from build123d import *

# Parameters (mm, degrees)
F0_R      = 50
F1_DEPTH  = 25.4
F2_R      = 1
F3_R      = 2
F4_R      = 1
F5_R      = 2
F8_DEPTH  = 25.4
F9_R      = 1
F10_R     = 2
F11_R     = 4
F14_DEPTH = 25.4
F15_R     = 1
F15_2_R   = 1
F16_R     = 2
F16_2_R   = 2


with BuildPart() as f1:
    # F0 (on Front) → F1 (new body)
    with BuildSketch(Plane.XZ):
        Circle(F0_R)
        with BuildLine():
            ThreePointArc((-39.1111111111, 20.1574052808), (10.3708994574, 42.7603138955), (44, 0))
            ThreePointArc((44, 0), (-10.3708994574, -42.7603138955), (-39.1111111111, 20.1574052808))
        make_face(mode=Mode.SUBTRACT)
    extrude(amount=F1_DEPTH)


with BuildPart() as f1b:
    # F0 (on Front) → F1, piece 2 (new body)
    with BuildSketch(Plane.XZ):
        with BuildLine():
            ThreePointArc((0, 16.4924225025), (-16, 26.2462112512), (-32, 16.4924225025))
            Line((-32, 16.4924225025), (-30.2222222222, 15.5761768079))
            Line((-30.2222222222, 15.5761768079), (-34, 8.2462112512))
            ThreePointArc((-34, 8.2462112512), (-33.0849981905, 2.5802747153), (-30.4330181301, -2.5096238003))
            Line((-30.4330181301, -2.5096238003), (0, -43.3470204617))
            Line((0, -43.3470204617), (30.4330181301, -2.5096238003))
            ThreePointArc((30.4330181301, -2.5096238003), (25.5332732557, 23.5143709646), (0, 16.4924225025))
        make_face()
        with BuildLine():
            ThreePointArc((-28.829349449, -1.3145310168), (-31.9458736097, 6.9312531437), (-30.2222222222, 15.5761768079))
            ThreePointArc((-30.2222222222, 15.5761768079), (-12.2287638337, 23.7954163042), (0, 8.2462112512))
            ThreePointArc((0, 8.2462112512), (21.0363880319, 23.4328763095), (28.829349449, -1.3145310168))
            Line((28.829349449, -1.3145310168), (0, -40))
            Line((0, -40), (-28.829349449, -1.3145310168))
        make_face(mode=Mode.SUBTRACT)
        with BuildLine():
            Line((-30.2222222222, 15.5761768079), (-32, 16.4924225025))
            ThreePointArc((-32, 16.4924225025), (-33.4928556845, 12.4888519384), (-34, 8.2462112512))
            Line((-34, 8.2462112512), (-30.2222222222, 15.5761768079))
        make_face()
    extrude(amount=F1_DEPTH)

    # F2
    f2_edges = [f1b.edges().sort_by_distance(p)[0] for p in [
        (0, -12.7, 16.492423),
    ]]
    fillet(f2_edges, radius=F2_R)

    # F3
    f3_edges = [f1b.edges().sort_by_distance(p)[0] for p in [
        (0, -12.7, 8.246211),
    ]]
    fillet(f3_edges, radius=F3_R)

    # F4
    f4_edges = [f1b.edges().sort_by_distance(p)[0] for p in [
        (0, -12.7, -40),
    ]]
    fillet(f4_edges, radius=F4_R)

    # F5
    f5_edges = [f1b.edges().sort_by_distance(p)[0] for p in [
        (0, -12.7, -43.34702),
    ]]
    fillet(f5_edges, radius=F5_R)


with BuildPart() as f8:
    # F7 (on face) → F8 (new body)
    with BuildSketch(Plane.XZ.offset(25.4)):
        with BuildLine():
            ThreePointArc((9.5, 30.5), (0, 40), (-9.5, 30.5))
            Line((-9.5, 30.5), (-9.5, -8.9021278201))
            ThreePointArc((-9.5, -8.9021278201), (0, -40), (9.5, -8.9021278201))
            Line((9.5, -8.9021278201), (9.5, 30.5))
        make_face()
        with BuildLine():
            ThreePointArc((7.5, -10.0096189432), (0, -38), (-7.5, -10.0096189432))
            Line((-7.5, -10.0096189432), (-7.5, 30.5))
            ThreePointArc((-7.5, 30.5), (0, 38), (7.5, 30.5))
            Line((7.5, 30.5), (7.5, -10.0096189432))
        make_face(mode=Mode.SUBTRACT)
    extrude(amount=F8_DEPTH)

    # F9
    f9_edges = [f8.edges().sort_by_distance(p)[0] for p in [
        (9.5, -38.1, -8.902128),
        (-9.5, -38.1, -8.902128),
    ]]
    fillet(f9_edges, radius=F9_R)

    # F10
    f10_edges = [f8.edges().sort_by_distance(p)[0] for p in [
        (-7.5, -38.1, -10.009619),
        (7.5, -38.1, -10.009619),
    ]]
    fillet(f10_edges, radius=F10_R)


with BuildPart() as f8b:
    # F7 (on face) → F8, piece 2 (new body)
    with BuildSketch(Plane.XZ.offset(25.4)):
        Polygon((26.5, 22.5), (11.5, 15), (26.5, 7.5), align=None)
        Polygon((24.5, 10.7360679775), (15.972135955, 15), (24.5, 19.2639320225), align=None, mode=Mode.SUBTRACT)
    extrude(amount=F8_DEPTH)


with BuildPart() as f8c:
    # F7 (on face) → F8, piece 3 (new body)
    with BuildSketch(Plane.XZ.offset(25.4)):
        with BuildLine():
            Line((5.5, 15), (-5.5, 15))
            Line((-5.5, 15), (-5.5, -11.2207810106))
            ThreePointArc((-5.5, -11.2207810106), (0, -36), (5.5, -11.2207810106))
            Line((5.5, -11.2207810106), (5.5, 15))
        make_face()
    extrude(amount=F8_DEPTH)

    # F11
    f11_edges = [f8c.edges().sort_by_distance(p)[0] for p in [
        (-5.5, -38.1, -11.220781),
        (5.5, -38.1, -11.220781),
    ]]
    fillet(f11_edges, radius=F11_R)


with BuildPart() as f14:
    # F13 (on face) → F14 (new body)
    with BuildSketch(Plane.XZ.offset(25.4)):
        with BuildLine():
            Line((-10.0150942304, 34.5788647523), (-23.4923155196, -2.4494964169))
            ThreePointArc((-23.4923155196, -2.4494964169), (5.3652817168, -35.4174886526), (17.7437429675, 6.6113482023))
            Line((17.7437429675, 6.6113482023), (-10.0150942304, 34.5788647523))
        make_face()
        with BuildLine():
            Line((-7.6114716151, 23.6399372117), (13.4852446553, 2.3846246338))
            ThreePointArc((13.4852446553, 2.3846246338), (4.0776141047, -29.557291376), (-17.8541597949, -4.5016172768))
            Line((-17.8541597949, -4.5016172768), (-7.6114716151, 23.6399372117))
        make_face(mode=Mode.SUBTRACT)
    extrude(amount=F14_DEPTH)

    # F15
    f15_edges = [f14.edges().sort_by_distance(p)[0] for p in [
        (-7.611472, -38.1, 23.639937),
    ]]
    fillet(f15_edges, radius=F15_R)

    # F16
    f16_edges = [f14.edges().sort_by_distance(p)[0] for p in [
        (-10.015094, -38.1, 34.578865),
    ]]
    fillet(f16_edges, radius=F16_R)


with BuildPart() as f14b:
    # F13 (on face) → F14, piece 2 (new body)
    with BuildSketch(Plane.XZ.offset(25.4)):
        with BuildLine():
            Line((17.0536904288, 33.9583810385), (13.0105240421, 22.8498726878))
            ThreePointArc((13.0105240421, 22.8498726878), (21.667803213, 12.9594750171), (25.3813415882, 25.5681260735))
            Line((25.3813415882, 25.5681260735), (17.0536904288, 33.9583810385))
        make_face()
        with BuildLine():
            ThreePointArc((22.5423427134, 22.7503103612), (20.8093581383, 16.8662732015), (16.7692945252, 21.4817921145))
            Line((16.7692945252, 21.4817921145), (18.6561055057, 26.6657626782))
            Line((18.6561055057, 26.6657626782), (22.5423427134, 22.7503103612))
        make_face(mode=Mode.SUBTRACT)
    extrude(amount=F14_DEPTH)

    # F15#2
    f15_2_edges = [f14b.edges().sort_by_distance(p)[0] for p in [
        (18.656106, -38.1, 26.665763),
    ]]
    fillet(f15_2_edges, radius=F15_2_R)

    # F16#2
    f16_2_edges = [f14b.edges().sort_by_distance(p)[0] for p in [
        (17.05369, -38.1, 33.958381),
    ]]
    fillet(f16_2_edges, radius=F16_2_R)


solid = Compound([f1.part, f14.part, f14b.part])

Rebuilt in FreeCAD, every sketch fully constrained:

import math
import FreeCAD as App
import Part
import Sketcher

V = App.Vector
Q = App.Units.Quantity


def edges_at(feature, points):
    """Names of the edges that pass closest to the given points."""
    edges = feature.Shape.Edges
    near = lambda p: min(range(len(edges)), key=lambda i: edges[i].distToShape(Part.Vertex(*p))[0])
    return sorted({f"Edge{near(p) + 1}" for p in points})


def add_polygon(sketch, points):
    """Adds a closed chain of lines whose ends are joined by coincident constraints."""
    first, n = sketch.GeometryCount, len(points)
    for a, b in zip(points, points[1:] + points[:1]):
        sketch.addGeometry(Part.LineSegment(App.Vector(*a, 0), App.Vector(*b, 0)), False)
    for i in range(n):
        sketch.addConstraint(Sketcher.Constraint("Coincident", first + i, 2, first + (i + 1) % n, 1))

doc = App.newDocument("Part")
body = doc.addObject("PartDesign::Body", "Body")

sketch1 = body.newObject("Sketcher::SketchObject", "Sketch")
sketch1.AttachmentSupport = (doc.getObject("XZ_Plane"), [""])
sketch1.MapMode = "FlatFace"
sketch1.addGeometry(Part.Circle(V(0, 0, 0), V(0, 0, 1), 50), False)
sketch1.addGeometry(Part.ArcOfCircle(Part.Circle(V(0, 0, 0), V(0, 0, 1), 44), math.radians(153), math.radians(360)), False)
sketch1.addGeometry(Part.ArcOfCircle(Part.Circle(V(0, 0, 0), V(0, 0, 1), 44), math.radians(0), math.radians(153)), False)
sketch1.addConstraint(Sketcher.Constraint("Tangent", 1, 1, 2, 2))
sketch1.addConstraint(Sketcher.Constraint("Coincident", 2, 1, 1, 2))
sketch1.addConstraint(Sketcher.Constraint("Coincident", 0, 3, -1, 1))
sketch1.addConstraint(Sketcher.Constraint("Coincident", 1, 3, -1, 1))
sketch1.addConstraint(Sketcher.Constraint("PointOnObject", 2, 1, -1))
sketch1.addConstraint(Sketcher.Constraint("Diameter", 0, Q("100 mm")))
sketch1.addConstraint(Sketcher.Constraint("Radius", 1, Q("44 mm")))
sketch1.addConstraint(Sketcher.Constraint("DistanceX", 1, 1, -1, 1, Q("39.111111 mm")))
pad1 = body.newObject("PartDesign::Pad", "Pad")
pad1.Profile = sketch1
pad1.Length = 25.4
body2 = doc.addObject("PartDesign::Body", "Body001")

sketch2 = body2.newObject("Sketcher::SketchObject", "Sketch001")
sketch2.AttachmentSupport = (doc.getObject("XZ_Plane001"), [""])
sketch2.MapMode = "FlatFace"
sketch2.addGeometry(Part.LineSegment(V(0, -43, 0), V(30, -3, 0)), False)
sketch2.addGeometry(Part.ArcOfCircle(Part.Circle(V(16, 8, 0), V(0, 0, 1), 18), math.radians(-37), math.radians(153)), False)
sketch2.addGeometry(Part.ArcOfCircle(Part.Circle(V(-16, 8, 0), V(0, 0, 1), 18), math.radians(27), math.radians(153)), False)
sketch2.addGeometry(Part.ArcOfCircle(Part.Circle(V(-16, 8, 0), V(0, 0, 1), 18), math.radians(153), math.radians(180)), False)
sketch2.addGeometry(Part.ArcOfCircle(Part.Circle(V(-16, 8, 0), V(0, 0, 1), 18), math.radians(180), math.radians(217)), False)
sketch2.addGeometry(Part.LineSegment(V(-30, -3, 0), V(0, -43, 0)), False)
sketch2.addGeometry(Part.ArcOfCircle(Part.Circle(V(-16, 8, 0), V(0, 0, 1), 16), math.radians(153), math.radians(217)), False)
sketch2.addGeometry(Part.ArcOfCircle(Part.Circle(V(-16, 8, 0), V(0, 0, 1), 16), math.radians(0), math.radians(153)), False)
sketch2.addGeometry(Part.ArcOfCircle(Part.Circle(V(16, 8, 0), V(0, 0, 1), 16), math.radians(-37), math.radians(180)), False)
sketch2.addGeometry(Part.LineSegment(V(29, -1, 0), V(0, -40, 0)), False)
sketch2.addGeometry(Part.LineSegment(V(0, -40, 0), V(-29, -1, 0)), False)
sketch2.addConstraint(Sketcher.Constraint("Tangent", 0, 2, 1, 1))
sketch2.addConstraint(Sketcher.Constraint("Coincident", 1, 2, 2, 1))
sketch2.addConstraint(Sketcher.Constraint("Tangent", 2, 2, 3, 1))
sketch2.addConstraint(Sketcher.Constraint("Tangent", 3, 2, 4, 1))
sketch2.addConstraint(Sketcher.Constraint("Tangent", 4, 2, 5, 1))
sketch2.addConstraint(Sketcher.Constraint("Coincident", 5, 2, 0, 1))
sketch2.addConstraint(Sketcher.Constraint("Tangent", 6, 1, 7, 2))
sketch2.addConstraint(Sketcher.Constraint("Tangent", 7, 1, 8, 2))
sketch2.addConstraint(Sketcher.Constraint("Tangent", 8, 1, 9, 1))
sketch2.addConstraint(Sketcher.Constraint("Coincident", 9, 2, 10, 1))
sketch2.addConstraint(Sketcher.Constraint("Tangent", 10, 2, 6, 2))
sketch2.addConstraint(Sketcher.Constraint("Coincident", 4, 3, 2, 3))
sketch2.addConstraint(Sketcher.Constraint("Coincident", 6, 3, 2, 3))
sketch2.addConstraint(Sketcher.Constraint("Coincident", 8, 3, 1, 3))
sketch2.addConstraint(Sketcher.Constraint("Equal", 1, 2))
sketch2.addConstraint(Sketcher.Constraint("Equal", 6, 7))
sketch2.addConstraint(Sketcher.Constraint("Equal", 7, 8))
sketch2.addConstraint(Sketcher.Constraint("Symmetric", 1, 3, 2, 3, -2))
sketch2.addConstraint(Sketcher.Constraint("PointOnObject", 5, 2, -2))
sketch2.addConstraint(Sketcher.Constraint("PointOnObject", 9, 2, -2))
sketch2.addConstraint(Sketcher.Constraint("Parallel", 0, 9))
sketch2.addConstraint(Sketcher.Constraint("Horizontal", 1, 2, 2, 2))
sketch2.addConstraint(Sketcher.Constraint("Horizontal", 8, 3, 3, 2))
sketch2.addConstraint(Sketcher.Constraint("Radius", 1, Q("18 mm")))
sketch2.addConstraint(Sketcher.Constraint("Radius", 6, Q("16 mm")))
sketch2.addConstraint(Sketcher.Constraint("DistanceY", 9, 2, -1, 1, Q("40 mm")))
sketch2.addConstraint(Sketcher.Constraint("Distance", 9, Q("48.246211 mm")))
sketch2.addConstraint(Sketcher.Constraint("DistanceX", 6, 1, -1, 1, Q("30.222222 mm")))
pad2 = body2.newObject("PartDesign::Pad", "Pad001")
pad2.Profile = sketch2
pad2.Length = 25.4
doc.recompute()

fillet = body2.newObject("PartDesign::Fillet", "Fillet")
fillet.Base = (pad2, edges_at(pad2, [(0, -12.7, 16.492)]))
fillet.Radius = 1
doc.recompute()

fillet2 = body2.newObject("PartDesign::Fillet", "Fillet001")
fillet2.Base = (fillet, edges_at(fillet, [(0, -12.7, 8.246)]))
fillet2.Radius = 2
doc.recompute()

fillet3 = body2.newObject("PartDesign::Fillet", "Fillet002")
fillet3.Base = (fillet2, edges_at(fillet2, [(0, -12.7, -40)]))
fillet3.Radius = 1
doc.recompute()

fillet4 = body2.newObject("PartDesign::Fillet", "Fillet003")
fillet4.Base = (fillet3, edges_at(fillet3, [(0, -12.7, -43.347)]))
fillet4.Radius = 2
body3 = doc.addObject("PartDesign::Body", "Body002")

sketch3 = body3.newObject("Sketcher::SketchObject", "Sketch002")
sketch3.AttachmentSupport = (doc.getObject("XZ_Plane002"), [""])
sketch3.MapMode = "FlatFace"
sketch3.AttachmentOffset = App.Placement(V(0, 0, 25.4), App.Rotation())
sketch3.addGeometry(Part.ArcOfCircle(Part.Circle(V(0, 30, 0), V(0, 0, 1), 10), math.radians(0), math.radians(180)), False)
sketch3.addGeometry(Part.LineSegment(V(-10, 30, 0), V(-10, -9, 0)), False)
sketch3.addGeometry(Part.ArcOfCircle(Part.Circle(V(0, -23, 0), V(0, 0, 1), 17), math.radians(124), math.radians(416)), False)
sketch3.addGeometry(Part.LineSegment(V(10, -9, 0), V(10, 30, 0)), False)
sketch3.addGeometry(Part.LineSegment(V(8, 30, 0), V(8, -10, 0)), False)
sketch3.addGeometry(Part.ArcOfCircle(Part.Circle(V(0, -23, 0), V(0, 0, 1), 15), math.radians(120), math.radians(420)), False)
sketch3.addGeometry(Part.LineSegment(V(-8, -10, 0), V(-8, 30, 0)), False)
sketch3.addGeometry(Part.ArcOfCircle(Part.Circle(V(0, 30, 0), V(0, 0, 1), 8), math.radians(0), math.radians(180)), False)
sketch3.addConstraint(Sketcher.Constraint("Tangent", 0, 2, 1, 1))
sketch3.addConstraint(Sketcher.Constraint("Coincident", 1, 2, 2, 1))
sketch3.addConstraint(Sketcher.Constraint("Coincident", 2, 2, 3, 1))
sketch3.addConstraint(Sketcher.Constraint("Tangent", 3, 2, 0, 1))
sketch3.addConstraint(Sketcher.Constraint("Coincident", 4, 2, 5, 2))
sketch3.addConstraint(Sketcher.Constraint("Coincident", 5, 1, 6, 1))
sketch3.addConstraint(Sketcher.Constraint("Tangent", 6, 2, 7, 2))
sketch3.addConstraint(Sketcher.Constraint("Tangent", 7, 1, 4, 1))
sketch3.addConstraint(Sketcher.Constraint("Vertical", 1))
sketch3.addConstraint(Sketcher.Constraint("Vertical", 3))
sketch3.addConstraint(Sketcher.Constraint("Vertical", 4))
sketch3.addConstraint(Sketcher.Constraint("Vertical", 6))
sketch3.addConstraint(Sketcher.Constraint("Coincident", 5, 3, 2, 3))
sketch3.addConstraint(Sketcher.Constraint("Coincident", 7, 3, 0, 3))
sketch3.addConstraint(Sketcher.Constraint("Symmetric", 1, 2, 2, 2, -2))
sketch3.addConstraint(Sketcher.Constraint("Radius", 2, Q("17 mm")))
sketch3.addConstraint(Sketcher.Constraint("Radius", 5, Q("15 mm")))
sketch3.addConstraint(Sketcher.Constraint("Radius", 0, Q("9.5 mm")))
sketch3.addConstraint(Sketcher.Constraint("Radius", 7, Q("7.5 mm")))
sketch3.addConstraint(Sketcher.Constraint("DistanceY", 2, 3, -1, 1, Q("23 mm")))
sketch3.addConstraint(Sketcher.Constraint("DistanceY", -1, 1, 0, 3, Q("30.5 mm")))
pad3 = body3.newObject("PartDesign::Pad", "Pad002")
pad3.Profile = sketch3
pad3.Length = 25.4
doc.recompute()

fillet5 = body3.newObject("PartDesign::Fillet", "Fillet004")
fillet5.Base = (pad3, edges_at(pad3, [(9.5, -38.1, -8.902), (-9.5, -38.1, -8.902)]))
fillet5.Radius = 1
doc.recompute()

fillet6 = body3.newObject("PartDesign::Fillet", "Fillet005")
fillet6.Base = (fillet5, edges_at(fillet5, [(-7.5, -38.1, -10.01), (7.5, -38.1, -10.01)]))
fillet6.Radius = 2
body4 = doc.addObject("PartDesign::Body", "Body003")

sketch4 = body4.newObject("Sketcher::SketchObject", "Sketch003")
sketch4.AttachmentSupport = (doc.getObject("XZ_Plane003"), [""])
sketch4.MapMode = "FlatFace"
sketch4.AttachmentOffset = App.Placement(V(0, 0, 25.4), App.Rotation())
add_polygon(sketch4, [(26, 22), (12, 15), (26, 8)])
add_polygon(sketch4, [(24, 19), (24, 11), (16, 15)])
sketch4.addConstraint(Sketcher.Constraint("Vertical", 2))
sketch4.addConstraint(Sketcher.Constraint("Vertical", 3))
sketch4.addConstraint(Sketcher.Constraint("Parallel", 1, 4))
sketch4.addConstraint(Sketcher.Constraint("Parallel", 0, 5))
sketch4.addConstraint(Sketcher.Constraint("Horizontal", 0, 2, 4, 2))
sketch4.addConstraint(Sketcher.Constraint("Equal", 0, 1))
sketch4.addConstraint(Sketcher.Constraint("DistanceY", 2, 1, 2, 2, Q("15 mm")))
sketch4.addConstraint(Sketcher.Constraint("DistanceY", -1, 1, 0, 2, Q("15 mm")))
sketch4.addConstraint(Sketcher.Constraint("DistanceX", 0, 2, 1, 2, Q("15 mm")))
sketch4.addConstraint(Sketcher.Constraint("DistanceX", 3, 2, 1, 2, Q("2 mm")))
sketch4.addConstraint(Sketcher.Constraint("DistanceX", -1, 1, 0, 2, Q("11.5 mm")))
sketch4.addConstraint(Sketcher.Constraint("Distance", 4, Q("9.534442 mm")))
pad4 = body4.newObject("PartDesign::Pad", "Pad003")
pad4.Profile = sketch4
pad4.Length = 25.4
body5 = doc.addObject("PartDesign::Body", "Body004")

sketch5 = body5.newObject("Sketcher::SketchObject", "Sketch004")
sketch5.AttachmentSupport = (doc.getObject("XZ_Plane004"), [""])
sketch5.MapMode = "FlatFace"
sketch5.AttachmentOffset = App.Placement(V(0, 0, 25.4), App.Rotation())
sketch5.addGeometry(Part.LineSegment(V(6, 15, 0), V(-6, 15, 0)), False)
sketch5.addGeometry(Part.LineSegment(V(-6, 15, 0), V(-6, -11, 0)), False)
sketch5.addGeometry(Part.ArcOfCircle(Part.Circle(V(0, -23, 0), V(0, 0, 1), 13), math.radians(115), math.radians(425)), False)
sketch5.addGeometry(Part.LineSegment(V(6, -11, 0), V(6, 15, 0)), False)
sketch5.addConstraint(Sketcher.Constraint("Coincident", 0, 2, 1, 1))
sketch5.addConstraint(Sketcher.Constraint("Coincident", 1, 2, 2, 1))
sketch5.addConstraint(Sketcher.Constraint("Coincident", 2, 2, 3, 1))
sketch5.addConstraint(Sketcher.Constraint("Coincident", 3, 2, 0, 1))
sketch5.addConstraint(Sketcher.Constraint("Horizontal", 0))
sketch5.addConstraint(Sketcher.Constraint("Vertical", 1))
sketch5.addConstraint(Sketcher.Constraint("Vertical", 3))
sketch5.addConstraint(Sketcher.Constraint("Symmetric", 1, 2, 2, 2, -2))
sketch5.addConstraint(Sketcher.Constraint("Radius", 2, Q("13 mm")))
sketch5.addConstraint(Sketcher.Constraint("DistanceX", 0, 2, 0, 1, Q("11 mm")))
sketch5.addConstraint(Sketcher.Constraint("DistanceY", 2, 3, -1, 1, Q("23 mm")))
sketch5.addConstraint(Sketcher.Constraint("DistanceY", -1, 1, 0, 2, Q("15 mm")))
pad5 = body5.newObject("PartDesign::Pad", "Pad004")
pad5.Profile = sketch5
pad5.Length = 25.4
doc.recompute()

fillet7 = body5.newObject("PartDesign::Fillet", "Fillet006")
fillet7.Base = (pad5, edges_at(pad5, [(-5.5, -38.1, -11.221), (5.5, -38.1, -11.221)]))
fillet7.Radius = 4
body6 = doc.addObject("PartDesign::Body", "Body005")

sketch6 = body6.newObject("Sketcher::SketchObject", "Sketch005")
sketch6.AttachmentSupport = (doc.getObject("XZ_Plane005"), [""])
sketch6.MapMode = "FlatFace"
sketch6.AttachmentOffset = App.Placement(V(0, 0, 25.4), App.Rotation())
sketch6.addGeometry(Part.LineSegment(V(-10, 35, 0), V(-23, -2, 0)), False)
sketch6.addGeometry(Part.ArcOfCircle(Part.Circle(V(0, -11, 0), V(0, 0, 1), 25), math.radians(160), math.radians(405)), False)
sketch6.addGeometry(Part.LineSegment(V(18, 7, 0), V(-10, 35, 0)), False)
sketch6.addGeometry(Part.LineSegment(V(-18, -5, 0), V(-8, 24, 0)), False)
sketch6.addGeometry(Part.LineSegment(V(-8, 24, 0), V(13, 2, 0)), False)
sketch6.addGeometry(Part.ArcOfCircle(Part.Circle(V(0, -11, 0), V(0, 0, 1), 19), math.radians(160), math.radians(405)), False)
sketch6.addConstraint(Sketcher.Constraint("Tangent", 0, 2, 1, 1))
sketch6.addConstraint(Sketcher.Constraint("Tangent", 1, 2, 2, 1))
sketch6.addConstraint(Sketcher.Constraint("Coincident", 2, 2, 0, 1))
sketch6.addConstraint(Sketcher.Constraint("Coincident", 3, 2, 4, 1))
sketch6.addConstraint(Sketcher.Constraint("Tangent", 4, 2, 5, 2))
sketch6.addConstraint(Sketcher.Constraint("Tangent", 5, 1, 3, 1))
sketch6.addConstraint(Sketcher.Constraint("Coincident", 5, 3, 1, 3))
sketch6.addConstraint(Sketcher.Constraint("PointOnObject", 1, 3, -2))
sketch6.addConstraint(Sketcher.Constraint("Parallel", 0, 3))
sketch6.addConstraint(Sketcher.Constraint("Parallel", 2, 4))
sketch6.addConstraint(Sketcher.Constraint("Radius", 1, Q("25 mm")))
sketch6.addConstraint(Sketcher.Constraint("Radius", 5, Q("19 mm")))
sketch6.addConstraint(Sketcher.Constraint("Angle", 0, Q("-110 deg")))
sketch6.addConstraint(Sketcher.Constraint("DistanceY", 1, 3, -1, 1, Q("11 mm")))
sketch6.addConstraint(Sketcher.Constraint("DistanceX", 4, 2, 1, 2, Q("4.258498 mm")))
pad6 = body6.newObject("PartDesign::Pad", "Pad005")
pad6.Profile = sketch6
pad6.Length = 25.4
doc.recompute()

fillet8 = body6.newObject("PartDesign::Fillet", "Fillet007")
fillet8.Base = (pad6, edges_at(pad6, [(-7.611, -38.1, 23.64)]))
fillet8.Radius = 1
doc.recompute()

fillet9 = body6.newObject("PartDesign::Fillet", "Fillet008")
fillet9.Base = (fillet8, edges_at(fillet8, [(-10.015, -38.1, 34.579)]))
fillet9.Radius = 2
body7 = doc.addObject("PartDesign::Body", "Body006")

sketch7 = body7.newObject("Sketcher::SketchObject", "Sketch006")
sketch7.AttachmentSupport = (doc.getObject("XZ_Plane006"), [""])
sketch7.MapMode = "FlatFace"
sketch7.AttachmentOffset = App.Placement(V(0, 0, 25.4), App.Rotation())
sketch7.addGeometry(Part.LineSegment(V(17.1, 34, 0), V(13, 22.8, 0)), False)
sketch7.addGeometry(Part.ArcOfCircle(Part.Circle(V(20.1, 20.3, 0), V(0, 0, 1), 7.5), math.radians(160), math.radians(405)), False)
sketch7.addGeometry(Part.LineSegment(V(25.4, 25.6, 0), V(17.1, 34, 0)), False)
sketch7.addGeometry(Part.LineSegment(V(18.7, 26.7, 0), V(22.5, 22.8, 0)), False)
sketch7.addGeometry(Part.ArcOfCircle(Part.Circle(V(20.1, 20.3, 0), V(0, 0, 1), 3.5), math.radians(160), math.radians(405)), False)
sketch7.addGeometry(Part.LineSegment(V(16.8, 21.5, 0), V(18.7, 26.7, 0)), False)
sketch7.addConstraint(Sketcher.Constraint("Tangent", 0, 2, 1, 1))
sketch7.addConstraint(Sketcher.Constraint("Tangent", 1, 2, 2, 1))
sketch7.addConstraint(Sketcher.Constraint("Coincident", 2, 2, 0, 1))
sketch7.addConstraint(Sketcher.Constraint("Tangent", 3, 2, 4, 2))
sketch7.addConstraint(Sketcher.Constraint("Tangent", 4, 1, 5, 1))
sketch7.addConstraint(Sketcher.Constraint("Coincident", 5, 2, 3, 1))
sketch7.addConstraint(Sketcher.Constraint("Coincident", 4, 3, 1, 3))
sketch7.addConstraint(Sketcher.Constraint("Parallel", 2, 3))
sketch7.addConstraint(Sketcher.Constraint("Parallel", 0, 5))
sketch7.addConstraint(Sketcher.Constraint("Radius", 1, Q("7.5 mm")))
sketch7.addConstraint(Sketcher.Constraint("Radius", 4, Q("3.5 mm")))
sketch7.addConstraint(Sketcher.Constraint("Angle", 0, Q("-110 deg")))
sketch7.addConstraint(Sketcher.Constraint("DistanceX", 3, 2, 1, 2, Q("2.838999 mm")))
sketch7.addConstraint(Sketcher.Constraint("DistanceX", -1, 1, 1, 3, Q("20.058219 mm")))
sketch7.addConstraint(Sketcher.Constraint("DistanceY", -1, 1, 1, 3, Q("20.284722 mm")))
pad7 = body7.newObject("PartDesign::Pad", "Pad006")
pad7.Profile = sketch7
pad7.Length = 25.4
doc.recompute()

fillet10 = body7.newObject("PartDesign::Fillet", "Fillet009")
fillet10.Base = (pad7, edges_at(pad7, [(18.656, -38.1, 26.666)]))
fillet10.Radius = 1
doc.recompute()

fillet11 = body7.newObject("PartDesign::Fillet", "Fillet010")
fillet11.Base = (fillet10, edges_at(fillet10, [(17.054, -38.1, 33.958)]))
fillet11.Radius = 2
body2.Visibility = False
body3.Visibility = False
body4.Visibility = False
body5.Visibility = False

doc.recompute()
